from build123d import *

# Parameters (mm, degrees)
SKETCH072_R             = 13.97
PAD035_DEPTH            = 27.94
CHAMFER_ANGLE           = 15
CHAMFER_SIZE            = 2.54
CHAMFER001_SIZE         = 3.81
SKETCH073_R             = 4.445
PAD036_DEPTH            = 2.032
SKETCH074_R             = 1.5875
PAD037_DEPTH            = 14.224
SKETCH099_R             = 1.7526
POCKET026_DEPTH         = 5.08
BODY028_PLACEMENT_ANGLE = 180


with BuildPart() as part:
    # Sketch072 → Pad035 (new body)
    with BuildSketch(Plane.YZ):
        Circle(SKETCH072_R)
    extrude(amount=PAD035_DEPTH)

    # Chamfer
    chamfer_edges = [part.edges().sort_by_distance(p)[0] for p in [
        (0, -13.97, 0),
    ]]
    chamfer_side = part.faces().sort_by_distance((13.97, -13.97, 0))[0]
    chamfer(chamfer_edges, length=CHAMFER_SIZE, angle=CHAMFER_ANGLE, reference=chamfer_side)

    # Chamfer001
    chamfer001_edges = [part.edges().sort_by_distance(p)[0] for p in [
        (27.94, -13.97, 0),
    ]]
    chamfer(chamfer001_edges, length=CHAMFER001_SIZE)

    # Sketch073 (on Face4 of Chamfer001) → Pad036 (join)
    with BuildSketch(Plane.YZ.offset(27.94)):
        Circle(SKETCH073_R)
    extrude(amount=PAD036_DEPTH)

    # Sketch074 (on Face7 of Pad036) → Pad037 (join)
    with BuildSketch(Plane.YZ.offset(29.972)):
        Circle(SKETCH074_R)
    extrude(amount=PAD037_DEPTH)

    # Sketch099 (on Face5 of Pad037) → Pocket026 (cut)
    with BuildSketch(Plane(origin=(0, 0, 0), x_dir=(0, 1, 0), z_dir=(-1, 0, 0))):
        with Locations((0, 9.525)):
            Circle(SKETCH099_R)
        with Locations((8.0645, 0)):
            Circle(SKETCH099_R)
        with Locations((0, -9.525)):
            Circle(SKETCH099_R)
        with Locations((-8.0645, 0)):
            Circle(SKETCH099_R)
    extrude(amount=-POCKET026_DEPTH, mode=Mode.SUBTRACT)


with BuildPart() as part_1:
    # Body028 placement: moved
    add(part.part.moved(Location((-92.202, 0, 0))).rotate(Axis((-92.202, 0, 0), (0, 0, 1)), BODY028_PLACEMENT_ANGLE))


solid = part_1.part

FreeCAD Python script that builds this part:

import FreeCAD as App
import Part
import Sketcher
Q = App.Units.Quantity


def edges_at(feature, points):
    """Names of the edges that pass closest to the given points."""
    edges = feature.Shape.Edges
    near = lambda p: min(range(len(edges)), key=lambda i: edges[i].distToShape(Part.Vertex(*p))[0])
    return sorted({f"Edge{near(p) + 1}" for p in points})

doc = App.newDocument("Part")
body = doc.addObject("PartDesign::Body", "Body")

sketch1 = doc.addObject("Sketcher::SketchObject", "Sketch")
body.addObject(sketch1)
sketch1.AttachmentSupport = (doc.YZ_Plane, [""])
sketch1.MapMode = "FlatFace"
sketch1.addGeometry(Part.Circle(App.Vector(0, 0, 0), App.Vector(0, 0, 1), 14), False)
sketch1.addConstraint([
    Sketcher.Constraint("Coincident", 0, 3, -1, 1),
    Sketcher.Constraint("Diameter", 0, Q("1.1 in")),
])
pad1 = doc.addObject("PartDesign::Pad", "Pad")
body.addObject(pad1)
pad1.Profile = sketch1
pad1.Length = Q("1.1 in")
doc.recompute()

chamfer = doc.addObject("PartDesign::Chamfer", "Chamfer")
body.addObject(chamfer)
chamfer.Base = (pad1, edges_at(pad1, [(0, -13.97, 0)]))
chamfer.ChamferType = "Distance and Angle"
chamfer.Size = Q("0.1 in")
chamfer.Angle = 15
doc.recompute()

chamfer2 = doc.addObject("PartDesign::Chamfer", "Chamfer001")
body.addObject(chamfer2)
chamfer2.Base = (chamfer, edges_at(chamfer, [(27.94, -13.97, 0)]))
chamfer2.Size = Q("0.15 in")

sketch2 = doc.addObject("Sketcher::SketchObject", "Sketch001")
body.addObject(sketch2)
sketch2.AttachmentSupport = (doc.YZ_Plane, [""])
sketch2.MapMode = "FlatFace"
sketch2.AttachmentOffset = App.Placement(App.Vector(0, 0, 1.1 * 25.4), App.Rotation())
sketch2.addGeometry(Part.Circle(App.Vector(0, 0, 0), App.Vector(0, 0, 1), 4.4), False)
sketch2.addConstraint([
    Sketcher.Constraint("Coincident", 0, 3, -1, 1),
    Sketcher.Constraint("Diameter", 0, Q("0.35 in")),
])
pad2 = doc.addObject("PartDesign::Pad", "Pad001")
body.addObject(pad2)
pad2.Profile = sketch2
pad2.Length = Q("0.08 in")

sketch3 = doc.addObject("Sketcher::SketchObject", "Sketch002")
body.addObject(sketch3)
sketch3.AttachmentSupport = (doc.YZ_Plane, [""])
sketch3.MapMode = "FlatFace"
sketch3.AttachmentOffset = App.Placement(App.Vector(0, 0, 1.18 * 25.4), App.Rotation())
sketch3.addGeometry(Part.Circle(App.Vector(0, 0, 0), App.Vector(0, 0, 1), 1.6), False)
sketch3.addConstraint([
    Sketcher.Constraint("Coincident", 0, 3, -1, 1),
    Sketcher.Constraint("Diameter", 0, Q("0.125 in")),
])
pad3 = doc.addObject("PartDesign::Pad", "Pad002")
body.addObject(pad3)
pad3.Profile = sketch3
pad3.Length = Q("0.56 in")

sketch4 = doc.addObject("Sketcher::SketchObject", "Sketch003")
body.addObject(sketch4)
sketch4.AttachmentSupport = (doc.YZ_Plane, [""])
sketch4.MapMode = "FlatFace"
sketch4.addGeometry([
    Part.Circle(App.Vector(0, -9.5, 0), App.Vector(0, 0, 1), 1.8),
    Part.Circle(App.Vector(8.1, 0, 0), App.Vector(0, 0, 1), 1.8),
    Part.Circle(App.Vector(0, 9.5, 0), App.Vector(0, 0, 1), 1.8),
    Part.Circle(App.Vector(-8.1, 0, 0), App.Vector(0, 0, 1), 1.8),
], False)
sketch4.addConstraint([
    Sketcher.Constraint("Equal", 0, 1),
    Sketcher.Constraint("Equal", 1, 2),
    Sketcher.Constraint("Equal", 2, 3),
    Sketcher.Constraint("Symmetric", 0, 3, 2, 3, -1, 1),
    Sketcher.Constraint("Symmetric", 1, 3, 3, 3, -1, 1),
    Sketcher.Constraint("PointOnObject", 0, 3, -2),
    Sketcher.Constraint("PointOnObject", 1, 3, -1),
    Sketcher.Constraint("Diameter", 0, Q("0.138 in")),
    Sketcher.Constraint("DistanceY", 0, 3, 2, 3, Q("0.75 in")),
    Sketcher.Constraint("DistanceX", 3, 3, 1, 3, Q("0.635 in")),
])
pocket1 = doc.addObject("PartDesign::Pocket", "Pocket")
body.addObject(pocket1)
pocket1.Profile = sketch4
pocket1.Length = Q("0.2 in")
pocket1.Reversed = True
body2 = doc.addObject("PartDesign::Body", "Body001")
doc.recompute()

body.Placement = App.Placement(App.Vector(-92.202, 0, 0), App.Rotation(App.Vector(0, 0, 1), 180))
boolean = doc.addObject("PartDesign::Boolean", "Boolean")
body2.addObject(boolean)
boolean.Type = "Fuse"
boolean.addObjects([body])

doc.recompute()
